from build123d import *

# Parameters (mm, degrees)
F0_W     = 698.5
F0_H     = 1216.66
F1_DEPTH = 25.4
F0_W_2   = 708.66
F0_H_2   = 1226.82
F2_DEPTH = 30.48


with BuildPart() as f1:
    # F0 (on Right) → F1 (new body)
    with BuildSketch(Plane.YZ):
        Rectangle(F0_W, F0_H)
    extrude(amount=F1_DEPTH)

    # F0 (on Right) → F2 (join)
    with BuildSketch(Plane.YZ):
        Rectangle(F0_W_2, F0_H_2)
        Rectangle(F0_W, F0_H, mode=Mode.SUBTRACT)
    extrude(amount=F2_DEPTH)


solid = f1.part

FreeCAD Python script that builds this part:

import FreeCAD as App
import Part
import Sketcher

V = App.Vector
Q = App.Units.Quantity

doc = App.newDocument("Part")
body = doc.addObject("PartDesign::Body", "Body")

sketch1 = body.newObject("Sketcher::SketchObject", "Sketch")
sketch1.AttachmentSupport = (doc.getObject("YZ_Plane"), [""])
sketch1.MapMode = "FlatFace"
sketch1.addGeometry(Part.LineSegment(V(-349, 608, 0), V(-349, -608, 0)), False)
sketch1.addGeometry(Part.LineSegment(V(-349, -608, 0), V(349, -608, 0)), False)
sketch1.addGeometry(Part.LineSegment(V(349, -608, 0), V(349, 608, 0)), False)
sketch1.addGeometry(Part.LineSegment(V(349, 608, 0), V(-349, 608, 0)), False)
sketch1.addConstraint(Sketcher.Constraint("Coincident", 0, 2, 1, 1))
sketch1.addConstraint(Sketcher.Constraint("Coincident", 1, 2, 2, 1))
sketch1.addConstraint(Sketcher.Constraint("Coincident", 2, 2, 3, 1))
sketch1.addConstraint(Sketcher.Constraint("Coincident", 3, 2, 0, 1))
sketch1.addConstraint(Sketcher.Constraint("Vertical", 0))
sketch1.addConstraint(Sketcher.Constraint("Horizontal", 1))
sketch1.addConstraint(Sketcher.Constraint("Vertical", 2))
sketch1.addConstraint(Sketcher.Constraint("Horizontal", 3))
sketch1.addConstraint(Sketcher.Constraint("Symmetric", 0, 2, 2, 2, -1, 1))
sketch1.addConstraint(Sketcher.Constraint("DistanceX", 1, 1, 1, 2, Q("27.5 in")))
sketch1.addConstraint(Sketcher.Constraint("DistanceY", 0, 2, 0, 1, Q("47.9 in")))
pad1 = body.newObject("PartDesign::Pad", "Pad")
pad1.Profile = sketch1
pad1.Length = Q("1 in")

sketch2 = body.newObject("Sketcher::SketchObject", "Sketch001")
sketch2.AttachmentSupport = (doc.getObject("YZ_Plane"), [""])
sketch2.MapMode = "FlatFace"
sketch2.addGeometry(Part.LineSegment(V(-354, 613, 0), V(-354, -613, 0)), False)
sketch2.addGeometry(Part.LineSegment(V(-354, -613, 0), V(354, -613, 0)), False)
sketch2.addGeometry(Part.LineSegment(V(354, -613, 0), V(354, 613, 0)), False)
sketch2.addGeometry(Part.LineSegment(V(354, 613, 0), V(-354, 613, 0)), False)
sketch2.addGeometry(Part.LineSegment(V(349, -608, 0), V(-349, -608, 0)), False)
sketch2.addGeometry(Part.LineSegment(V(-349, -608, 0), V(-349, 608, 0)), False)
sketch2.addGeometry(Part.LineSegment(V(-349, 608, 0), V(349, 608, 0)), False)
sketch2.addGeometry(Part.LineSegment(V(349, 608, 0), V(349, -608, 0)), False)
sketch2.addConstraint(Sketcher.Constraint("Coincident", 0, 2, 1, 1))
sketch2.addConstraint(Sketcher.Constraint("Coincident", 1, 2, 2, 1))
sketch2.addConstraint(Sketcher.Constraint("Coincident", 2, 2, 3, 1))
sketch2.addConstraint(Sketcher.Constraint("Coincident", 3, 2, 0, 1))
sketch2.addConstraint(Sketcher.Constraint("Coincident", 4, 2, 5, 1))
sketch2.addConstraint(Sketcher.Constraint("Coincident", 5, 2, 6, 1))
sketch2.addConstraint(Sketcher.Constraint("Coincident", 6, 2, 7, 1))
sketch2.addConstraint(Sketcher.Constraint("Coincident", 7, 2, 4, 1))
sketch2.addConstraint(Sketcher.Constraint("Vertical", 0))
sketch2.addConstraint(Sketcher.Constraint("Horizontal", 1))
sketch2.addConstraint(Sketcher.Constraint("Vertical", 2))
sketch2.addConstraint(Sketcher.Constraint("Horizontal", 3))
sketch2.addConstraint(Sketcher.Constraint("Horizontal", 4))
sketch2.addConstraint(Sketcher.Constraint("Vertical", 5))
sketch2.addConstraint(Sketcher.Constraint("Horizontal", 6))
sketch2.addConstraint(Sketcher.Constraint("Vertical", 7))
sketch2.addConstraint(Sketcher.Constraint("Symmetric", 0, 2, 2, 2, -1, 1))
sketch2.addConstraint(Sketcher.Constraint("Symmetric", 4, 2, 6, 2, -1, 1))
sketch2.addConstraint(Sketcher.Constraint("DistanceX", 1, 1, 1, 2, Q("27.9 in")))
sketch2.addConstraint(Sketcher.Constraint("DistanceX", 4, 2, 4, 1, Q("27.5 in")))
sketch2.addConstraint(Sketcher.Constraint("DistanceY", 0, 2, 0, 1, Q("48.3 in")))
sketch2.addConstraint(Sketcher.Constraint("DistanceY", 5, 1, 5, 2, Q("47.9 in")))
pad2 = body.newObject("PartDesign::Pad", "Pad001")
pad2.Profile = sketch2
pad2.Length = Q("1.2 in")

doc.recompute()
